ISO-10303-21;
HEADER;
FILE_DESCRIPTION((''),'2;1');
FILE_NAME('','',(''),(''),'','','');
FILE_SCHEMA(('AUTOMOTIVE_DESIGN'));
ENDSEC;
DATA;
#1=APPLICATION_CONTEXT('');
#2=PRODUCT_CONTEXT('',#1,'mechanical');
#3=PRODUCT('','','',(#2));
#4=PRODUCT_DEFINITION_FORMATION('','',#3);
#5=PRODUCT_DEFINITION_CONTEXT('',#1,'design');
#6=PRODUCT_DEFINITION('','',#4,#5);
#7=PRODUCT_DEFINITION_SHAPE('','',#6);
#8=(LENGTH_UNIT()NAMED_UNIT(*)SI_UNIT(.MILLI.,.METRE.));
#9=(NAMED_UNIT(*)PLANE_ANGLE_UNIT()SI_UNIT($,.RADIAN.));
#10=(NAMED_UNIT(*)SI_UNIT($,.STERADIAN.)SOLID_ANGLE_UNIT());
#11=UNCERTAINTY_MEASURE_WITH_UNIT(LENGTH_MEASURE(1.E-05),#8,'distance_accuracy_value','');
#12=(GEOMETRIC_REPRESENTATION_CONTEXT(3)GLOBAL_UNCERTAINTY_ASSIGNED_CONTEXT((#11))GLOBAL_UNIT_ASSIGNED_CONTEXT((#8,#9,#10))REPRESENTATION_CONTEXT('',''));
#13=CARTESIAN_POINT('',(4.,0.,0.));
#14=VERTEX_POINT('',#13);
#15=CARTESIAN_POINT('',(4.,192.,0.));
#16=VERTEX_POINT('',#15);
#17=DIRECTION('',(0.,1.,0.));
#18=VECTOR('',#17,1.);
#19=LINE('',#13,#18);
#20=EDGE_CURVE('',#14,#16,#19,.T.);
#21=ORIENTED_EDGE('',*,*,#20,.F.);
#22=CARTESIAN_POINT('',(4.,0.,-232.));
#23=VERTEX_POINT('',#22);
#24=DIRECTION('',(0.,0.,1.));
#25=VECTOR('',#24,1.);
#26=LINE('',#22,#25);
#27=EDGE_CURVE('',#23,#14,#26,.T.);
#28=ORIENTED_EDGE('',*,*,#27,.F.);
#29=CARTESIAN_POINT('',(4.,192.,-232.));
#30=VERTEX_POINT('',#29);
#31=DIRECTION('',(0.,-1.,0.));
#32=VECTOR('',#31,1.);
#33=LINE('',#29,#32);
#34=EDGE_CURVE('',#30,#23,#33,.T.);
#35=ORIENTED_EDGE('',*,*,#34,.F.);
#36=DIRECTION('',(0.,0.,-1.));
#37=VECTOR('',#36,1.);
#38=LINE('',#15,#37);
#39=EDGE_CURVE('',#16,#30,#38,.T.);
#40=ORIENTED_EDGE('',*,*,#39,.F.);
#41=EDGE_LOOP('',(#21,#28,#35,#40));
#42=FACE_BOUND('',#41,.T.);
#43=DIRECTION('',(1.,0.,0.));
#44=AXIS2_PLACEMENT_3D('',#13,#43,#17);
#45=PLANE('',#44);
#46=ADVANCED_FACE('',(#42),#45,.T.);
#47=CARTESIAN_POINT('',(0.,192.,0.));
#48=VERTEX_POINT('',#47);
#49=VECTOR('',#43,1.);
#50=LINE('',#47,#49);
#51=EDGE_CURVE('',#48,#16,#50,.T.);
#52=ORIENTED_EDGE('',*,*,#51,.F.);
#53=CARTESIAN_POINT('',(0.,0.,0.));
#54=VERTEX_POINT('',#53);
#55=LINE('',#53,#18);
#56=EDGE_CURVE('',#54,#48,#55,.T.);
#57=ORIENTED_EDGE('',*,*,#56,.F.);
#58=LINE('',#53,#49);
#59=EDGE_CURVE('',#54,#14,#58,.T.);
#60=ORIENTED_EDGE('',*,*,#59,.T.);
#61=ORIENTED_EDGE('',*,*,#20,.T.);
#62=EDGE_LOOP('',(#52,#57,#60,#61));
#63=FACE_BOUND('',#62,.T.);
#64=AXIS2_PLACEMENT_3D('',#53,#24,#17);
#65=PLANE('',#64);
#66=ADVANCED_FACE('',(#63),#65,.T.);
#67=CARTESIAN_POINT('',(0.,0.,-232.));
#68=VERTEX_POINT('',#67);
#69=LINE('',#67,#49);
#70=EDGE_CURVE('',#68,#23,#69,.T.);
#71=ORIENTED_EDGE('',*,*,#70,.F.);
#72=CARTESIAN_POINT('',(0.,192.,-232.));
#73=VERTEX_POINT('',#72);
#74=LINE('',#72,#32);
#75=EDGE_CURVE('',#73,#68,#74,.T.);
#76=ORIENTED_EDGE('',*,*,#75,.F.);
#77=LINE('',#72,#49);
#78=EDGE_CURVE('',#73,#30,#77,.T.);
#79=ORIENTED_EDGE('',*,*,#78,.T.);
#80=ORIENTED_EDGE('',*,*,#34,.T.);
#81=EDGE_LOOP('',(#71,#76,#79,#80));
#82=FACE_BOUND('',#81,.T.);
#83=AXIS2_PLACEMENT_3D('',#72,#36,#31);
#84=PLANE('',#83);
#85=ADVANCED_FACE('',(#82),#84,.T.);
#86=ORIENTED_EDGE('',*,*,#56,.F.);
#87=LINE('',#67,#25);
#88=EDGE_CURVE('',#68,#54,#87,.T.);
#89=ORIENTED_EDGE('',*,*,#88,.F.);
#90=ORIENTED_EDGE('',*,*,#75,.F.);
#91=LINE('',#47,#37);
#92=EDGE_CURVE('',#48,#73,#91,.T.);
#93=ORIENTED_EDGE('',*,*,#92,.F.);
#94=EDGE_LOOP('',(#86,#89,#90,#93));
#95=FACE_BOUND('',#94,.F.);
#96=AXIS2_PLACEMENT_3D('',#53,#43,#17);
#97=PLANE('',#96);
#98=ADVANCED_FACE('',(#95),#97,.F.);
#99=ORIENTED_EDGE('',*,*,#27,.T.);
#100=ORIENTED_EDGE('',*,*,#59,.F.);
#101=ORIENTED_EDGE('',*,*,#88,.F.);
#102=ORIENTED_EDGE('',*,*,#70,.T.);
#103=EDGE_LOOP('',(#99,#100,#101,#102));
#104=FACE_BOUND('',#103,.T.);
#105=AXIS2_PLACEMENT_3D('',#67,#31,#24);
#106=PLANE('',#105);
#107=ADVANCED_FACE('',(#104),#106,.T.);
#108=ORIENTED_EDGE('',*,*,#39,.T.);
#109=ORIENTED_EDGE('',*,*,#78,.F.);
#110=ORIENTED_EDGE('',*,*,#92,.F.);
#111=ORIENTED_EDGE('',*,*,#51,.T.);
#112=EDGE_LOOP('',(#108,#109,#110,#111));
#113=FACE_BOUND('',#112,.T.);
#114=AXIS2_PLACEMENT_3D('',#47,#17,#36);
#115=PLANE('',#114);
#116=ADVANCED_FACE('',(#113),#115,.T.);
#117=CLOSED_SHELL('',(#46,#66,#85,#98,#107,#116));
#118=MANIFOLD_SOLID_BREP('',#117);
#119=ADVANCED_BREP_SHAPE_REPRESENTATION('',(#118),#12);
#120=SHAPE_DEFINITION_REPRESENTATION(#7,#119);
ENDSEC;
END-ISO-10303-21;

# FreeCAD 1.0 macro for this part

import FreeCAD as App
import Part
import Sketcher
from FreeCAD import Vector


def add_polygon(sketch, points):
    """Adds a closed chain of lines whose ends are joined by coincident constraints."""
    first, n = sketch.GeometryCount, len(points)
    for a, b in zip(points, points[1:] + points[:1]):
        sketch.addGeometry(Part.LineSegment(App.Vector(*a, 0), App.Vector(*b, 0)), False)
    for i in range(n):
        sketch.addConstraint(Sketcher.Constraint("Coincident", first + i, 2, first + (i + 1) % n, 1))

doc = App.newDocument("Part")
body = doc.addObject("PartDesign::Body", "Body")

# Sketch on YZ plane
sketch1 = body.newObject("Sketcher::SketchObject", "Sketch")
sketch1.AttachmentSupport = (doc.getObject("YZ_Plane"), [""])
sketch1.MapMode = "FlatFace"
add_polygon(sketch1, [(192, 0), (0, 0), (0, -232), (192, -232)])  # lines 0-3
sketch1.addConstraint([
    Sketcher.Constraint("Horizontal", 0),
    Sketcher.Constraint("Vertical", 1),
    Sketcher.Constraint("Horizontal", 2),
    Sketcher.Constraint("Vertical", 3),
    Sketcher.Constraint("Coincident", 0, 2, -1, 1),
    Sketcher.Constraint("DistanceX", 0, 2, 0, 1, 192.0),
    Sketcher.Constraint("DistanceY", 1, 2, 1, 1, 232.0),
])
pad1 = body.newObject("PartDesign::Pad", "Pad")
pad1.Profile = sketch1
pad1.Length = 4

doc.recompute()
